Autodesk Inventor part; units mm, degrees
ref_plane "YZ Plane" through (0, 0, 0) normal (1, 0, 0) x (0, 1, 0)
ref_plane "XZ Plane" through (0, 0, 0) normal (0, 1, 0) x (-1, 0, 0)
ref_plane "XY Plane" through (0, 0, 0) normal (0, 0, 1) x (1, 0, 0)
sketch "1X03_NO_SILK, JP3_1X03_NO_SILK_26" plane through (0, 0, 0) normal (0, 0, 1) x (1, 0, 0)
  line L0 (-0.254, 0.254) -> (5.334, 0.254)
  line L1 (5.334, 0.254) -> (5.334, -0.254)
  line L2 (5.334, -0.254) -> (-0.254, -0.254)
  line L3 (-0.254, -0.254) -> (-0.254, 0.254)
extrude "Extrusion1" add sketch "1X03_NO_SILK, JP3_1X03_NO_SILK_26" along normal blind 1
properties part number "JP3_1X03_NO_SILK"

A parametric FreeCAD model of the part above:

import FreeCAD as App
import Part
import Sketcher
from FreeCAD import Vector
Q = App.Units.Quantity


def add_polygon(sketch, points):
    """Adds a closed chain of lines whose ends are joined by coincident constraints."""
    first, n = sketch.GeometryCount, len(points)
    for a, b in zip(points, points[1:] + points[:1]):
        sketch.addGeometry(Part.LineSegment(App.Vector(*a, 0), App.Vector(*b, 0)), False)
    for i in range(n):
        sketch.addConstraint(Sketcher.Constraint("Coincident", first + i, 2, first + (i + 1) % n, 1))

doc = App.newDocument("Part")
params = doc.addObject("Spreadsheet::Sheet", "Params")
for row, (alias, value) in enumerate([
    ("sketch1_width", "0.22 in"),
    ("sketch1_height", "0.02 in"),
    ("pad1_length", "1 mm"),
], start=1):
    params.set(f"A{row}", alias)
    params.set(f"B{row}", "=" + value)
    params.setAlias(f"B{row}", alias)

body = doc.addObject("PartDesign::Body", "Body")

sketch1 = body.newObject("Sketcher::SketchObject", "Sketch")
sketch1.AttachmentSupport = (doc.getObject("XY_Plane"), [""])
sketch1.MapMode = "FlatFace"
add_polygon(sketch1, [(5.334, 0.254), (-0.254, 0.254), (-0.254, -0.254), (5.334, -0.254)])
sketch1.addConstraint([
    Sketcher.Constraint("Horizontal", 0),
    Sketcher.Constraint("Vertical", 1),
    Sketcher.Constraint("Horizontal", 2),
    Sketcher.Constraint("Vertical", 3),
    Sketcher.Constraint("DistanceX", 0, 2, 0, 1, Q("0.22 in")),
    Sketcher.Constraint("DistanceY", 1, 2, 1, 1, Q("0.02 in")),
    Sketcher.Constraint("DistanceX", 0, 2, -1, 1, Q("0.01 in")),
    Sketcher.Constraint("DistanceY", -1, 1, 0, 2, Q("0.01 in")),
])
sketch1.setExpression("Constraints[8]", "Params.sketch1_width")
sketch1.setExpression("Constraints[9]", "Params.sketch1_height")
pad1 = body.newObject("PartDesign::Pad", "Pad")
pad1.Profile = sketch1
pad1.setExpression("Length", "Params.pad1_length")

doc.recompute()
